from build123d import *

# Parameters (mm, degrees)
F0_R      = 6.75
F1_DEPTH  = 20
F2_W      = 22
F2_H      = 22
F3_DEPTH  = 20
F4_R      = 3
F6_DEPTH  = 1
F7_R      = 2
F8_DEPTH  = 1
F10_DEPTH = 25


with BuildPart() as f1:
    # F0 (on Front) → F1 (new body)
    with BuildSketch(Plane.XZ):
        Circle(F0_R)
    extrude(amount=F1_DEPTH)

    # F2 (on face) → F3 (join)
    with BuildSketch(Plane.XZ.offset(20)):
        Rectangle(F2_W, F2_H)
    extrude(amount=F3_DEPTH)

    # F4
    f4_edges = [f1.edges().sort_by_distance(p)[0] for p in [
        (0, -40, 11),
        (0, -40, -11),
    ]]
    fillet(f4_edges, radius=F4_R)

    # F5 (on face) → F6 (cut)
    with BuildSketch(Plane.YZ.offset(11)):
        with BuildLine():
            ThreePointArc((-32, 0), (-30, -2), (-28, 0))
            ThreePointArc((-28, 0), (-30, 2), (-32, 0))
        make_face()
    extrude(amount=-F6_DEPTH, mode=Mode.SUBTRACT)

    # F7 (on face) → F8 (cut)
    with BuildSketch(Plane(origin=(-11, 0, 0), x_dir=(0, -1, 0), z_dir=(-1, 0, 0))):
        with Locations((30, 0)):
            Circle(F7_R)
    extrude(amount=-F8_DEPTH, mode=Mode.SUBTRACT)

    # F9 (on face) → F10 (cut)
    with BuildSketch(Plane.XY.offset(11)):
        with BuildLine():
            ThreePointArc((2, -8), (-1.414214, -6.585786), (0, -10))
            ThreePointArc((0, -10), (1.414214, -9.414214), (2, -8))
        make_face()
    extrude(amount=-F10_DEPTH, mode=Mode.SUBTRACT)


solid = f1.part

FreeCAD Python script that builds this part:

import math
import FreeCAD as App
import Part
import Sketcher
from FreeCAD import Vector
Q = App.Units.Quantity


def edges_at(feature, points):
    """Names of the edges that pass closest to the given points."""
    edges = feature.Shape.Edges
    near = lambda p: min(range(len(edges)), key=lambda i: edges[i].distToShape(Part.Vertex(*p))[0])
    return sorted({f"Edge{near(p) + 1}" for p in points})


def add_polygon(sketch, points):
    """Adds a closed chain of lines whose ends are joined by coincident constraints."""
    first, n = sketch.GeometryCount, len(points)
    for a, b in zip(points, points[1:] + points[:1]):
        sketch.addGeometry(Part.LineSegment(App.Vector(*a, 0), App.Vector(*b, 0)), False)
    for i in range(n):
        sketch.addConstraint(Sketcher.Constraint("Coincident", first + i, 2, first + (i + 1) % n, 1))

doc = App.newDocument("Part")
body = doc.addObject("PartDesign::Body", "Body")

sketch1 = body.newObject("Sketcher::SketchObject", "Sketch")
sketch1.AttachmentSupport = (doc.getObject("XZ_Plane"), [""])
sketch1.MapMode = "FlatFace"
sketch1.addGeometry(Part.Circle(Vector(0, 0, 0), Vector(0, 0, 1), 6.75), False)
sketch1.addConstraint([
    Sketcher.Constraint("Coincident", 0, 3, -1, 1),
    Sketcher.Constraint("Diameter", 0, Q("13.5 mm")),
])
pad1 = body.newObject("PartDesign::Pad", "Pad")
pad1.Profile = sketch1
pad1.Length = 20

sketch2 = body.newObject("Sketcher::SketchObject", "Sketch001")
sketch2.AttachmentSupport = (doc.getObject("XZ_Plane"), [""])
sketch2.MapMode = "FlatFace"
sketch2.AttachmentOffset = App.Placement(Vector(0, 0, 20), App.Rotation())
add_polygon(sketch2, [(-11, 11), (-11, -11), (11, -11), (11, 11)])
sketch2.addConstraint([
    Sketcher.Constraint("Vertical", 0),
    Sketcher.Constraint("Horizontal", 1),
    Sketcher.Constraint("Vertical", 2),
    Sketcher.Constraint("Horizontal", 3),
    Sketcher.Constraint("Symmetric", 0, 2, 2, 2, -1, 1),
    Sketcher.Constraint("Equal", 3, 0),
    Sketcher.Constraint("DistanceX", 1, 1, 1, 2, Q("22 mm")),
])
pad2 = body.newObject("PartDesign::Pad", "Pad001")
pad2.Profile = sketch2
pad2.Length = 20
doc.recompute()

fillet = body.newObject("PartDesign::Fillet", "Fillet")
fillet.Base = (pad2, edges_at(pad2, [(0, -40, 11), (0, -40, -11)]))
fillet.Radius = 3

sketch3 = body.newObject("Sketcher::SketchObject", "Sketch002")
sketch3.AttachmentSupport = (doc.getObject("YZ_Plane"), [""])
sketch3.MapMode = "FlatFace"
sketch3.AttachmentOffset = App.Placement(Vector(0, 0, 11), App.Rotation())
sketch3.addGeometry(Part.Circle(Vector(-30, 0, 0), Vector(0, 0, 1), 2), False)
sketch3.addConstraint([
    Sketcher.Constraint("PointOnObject", 0, 3, -1),
    Sketcher.Constraint("Diameter", 0, Q("4 mm")),
    Sketcher.Constraint("DistanceX", 0, 3, -1, 1, Q("30 mm")),
])
pocket1 = body.newObject("PartDesign::Pocket", "Pocket")
pocket1.Profile = sketch3
pocket1.Length = 1

sketch4 = body.newObject("Sketcher::SketchObject", "Sketch003")
sketch4.AttachmentSupport = (doc.getObject("YZ_Plane"), [""])
sketch4.MapMode = "FlatFace"
sketch4.AttachmentOffset = App.Placement(Vector(0, 0, -11), App.Rotation())
sketch4.addGeometry(Part.Circle(Vector(-30, 0, 0), Vector(0, 0, 1), 2), False)
sketch4.addConstraint([
    Sketcher.Constraint("PointOnObject", 0, 3, -1),
    Sketcher.Constraint("Diameter", 0, Q("4 mm")),
    Sketcher.Constraint("DistanceX", 0, 3, -1, 1, Q("30 mm")),
])
pocket2 = body.newObject("PartDesign::Pocket", "Pocket001")
pocket2.Profile = sketch4
pocket2.Length = 1
pocket2.Reversed = True

sketch5 = body.newObject("Sketcher::SketchObject", "Sketch004")
sketch5.AttachmentSupport = (doc.getObject("XY_Plane"), [""])
sketch5.MapMode = "FlatFace"
sketch5.AttachmentOffset = App.Placement(Vector(0, 0, 11), App.Rotation())
sketch5.addGeometry([
    Part.ArcOfCircle(Part.Circle(Vector(0, -8, 0), Vector(0, 0, 1), 2), math.radians(-0.000007), math.radians(270.000007)),
    Part.ArcOfCircle(Part.Circle(Vector(0.000001, -8.000001, 0), Vector(0, 0, 1), 1.999999), math.radians(-90.000043), math.radians(0.000043)),
], False)
sketch5.addConstraint([
    Sketcher.Constraint("Tangent", 0, 1, 1, 2),
    Sketcher.Constraint("Coincident", 1, 1, 0, 2),
    Sketcher.Constraint("PointOnObject", 0, 3, -2),
    Sketcher.Constraint("PointOnObject", 1, 1, -2),
    Sketcher.Constraint("Horizontal", 1, 3, 0, 1),
    Sketcher.Constraint("Radius", 0, Q("2 mm")),
    Sketcher.Constraint("DistanceY", 0, 3, -1, 1, Q("8 mm")),
])
pocket3 = body.newObject("PartDesign::Pocket", "Pocket002")
pocket3.Profile = sketch5
pocket3.Length = 25

doc.recompute()
